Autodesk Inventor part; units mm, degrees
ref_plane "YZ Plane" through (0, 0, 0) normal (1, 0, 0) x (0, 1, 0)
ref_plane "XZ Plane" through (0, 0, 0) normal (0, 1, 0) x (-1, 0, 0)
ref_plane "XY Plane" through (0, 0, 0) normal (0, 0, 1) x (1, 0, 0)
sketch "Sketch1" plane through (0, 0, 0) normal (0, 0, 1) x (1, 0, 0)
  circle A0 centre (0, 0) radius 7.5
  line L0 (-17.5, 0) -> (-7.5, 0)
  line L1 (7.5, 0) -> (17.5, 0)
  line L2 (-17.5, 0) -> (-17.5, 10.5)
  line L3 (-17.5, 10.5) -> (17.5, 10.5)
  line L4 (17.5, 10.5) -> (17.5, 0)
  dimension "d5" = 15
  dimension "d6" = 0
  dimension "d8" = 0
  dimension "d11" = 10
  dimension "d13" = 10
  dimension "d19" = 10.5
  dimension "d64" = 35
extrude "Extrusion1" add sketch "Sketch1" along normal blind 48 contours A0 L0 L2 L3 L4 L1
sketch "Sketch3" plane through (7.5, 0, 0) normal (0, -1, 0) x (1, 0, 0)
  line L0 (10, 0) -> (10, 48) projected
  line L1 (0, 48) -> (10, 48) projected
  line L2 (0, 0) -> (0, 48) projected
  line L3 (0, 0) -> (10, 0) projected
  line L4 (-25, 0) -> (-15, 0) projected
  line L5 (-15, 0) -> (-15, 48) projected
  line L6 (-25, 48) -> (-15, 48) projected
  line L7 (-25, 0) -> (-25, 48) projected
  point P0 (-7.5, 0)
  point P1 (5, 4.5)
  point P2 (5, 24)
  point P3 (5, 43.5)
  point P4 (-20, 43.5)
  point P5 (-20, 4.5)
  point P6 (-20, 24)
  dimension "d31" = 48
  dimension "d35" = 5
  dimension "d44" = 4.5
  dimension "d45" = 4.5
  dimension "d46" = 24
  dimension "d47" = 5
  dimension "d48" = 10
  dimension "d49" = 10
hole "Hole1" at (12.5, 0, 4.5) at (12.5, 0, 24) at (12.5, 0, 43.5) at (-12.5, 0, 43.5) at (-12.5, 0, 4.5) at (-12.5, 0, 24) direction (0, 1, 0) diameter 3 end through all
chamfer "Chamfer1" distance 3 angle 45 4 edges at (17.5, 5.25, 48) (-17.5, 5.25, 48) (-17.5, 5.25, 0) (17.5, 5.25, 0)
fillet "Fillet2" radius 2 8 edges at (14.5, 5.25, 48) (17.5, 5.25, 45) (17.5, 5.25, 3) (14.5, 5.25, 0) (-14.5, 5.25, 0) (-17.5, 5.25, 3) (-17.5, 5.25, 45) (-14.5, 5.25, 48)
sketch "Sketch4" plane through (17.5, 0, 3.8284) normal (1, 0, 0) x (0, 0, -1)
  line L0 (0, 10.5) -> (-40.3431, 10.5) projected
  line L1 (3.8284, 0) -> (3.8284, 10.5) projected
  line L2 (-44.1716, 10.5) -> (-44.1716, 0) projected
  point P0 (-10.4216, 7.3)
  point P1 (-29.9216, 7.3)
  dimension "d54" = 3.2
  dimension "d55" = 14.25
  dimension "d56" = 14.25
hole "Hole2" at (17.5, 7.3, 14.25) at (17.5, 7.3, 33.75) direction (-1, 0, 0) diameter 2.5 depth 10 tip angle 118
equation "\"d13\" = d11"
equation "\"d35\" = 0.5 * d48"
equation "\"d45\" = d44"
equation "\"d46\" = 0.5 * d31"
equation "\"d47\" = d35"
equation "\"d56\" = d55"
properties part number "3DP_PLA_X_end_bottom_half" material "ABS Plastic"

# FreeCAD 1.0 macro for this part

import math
import FreeCAD as App
import Part
import Sketcher


def edges_at(feature, points):
    """Names of the edges that pass closest to the given points."""
    edges = feature.Shape.Edges
    near = lambda p: min(range(len(edges)), key=lambda i: edges[i].distToShape(Part.Vertex(*p))[0])
    return sorted({f"Edge{near(p) + 1}" for p in points})

doc = App.newDocument("Part")
body = doc.addObject("PartDesign::Body", "Body")

sketch1 = body.newObject("Sketcher::SketchObject", "Sketch")
sketch1.AttachmentSupport = (doc.getObject("XY_Plane"), [""])
sketch1.MapMode = "FlatFace"
sketch1.addGeometry(Part.ArcOfCircle(Part.Circle(App.Vector(0, 0, 0), App.Vector(0, 0, 1), 8), math.radians(0), math.radians(180)), False)
sketch1.addGeometry(Part.LineSegment(App.Vector(8, 0, 0), App.Vector(18, 0, 0)), False)
sketch1.addGeometry(Part.LineSegment(App.Vector(18, 0, 0), App.Vector(18, 10, 0)), False)
sketch1.addGeometry(Part.LineSegment(App.Vector(18, 10, 0), App.Vector(-18, 10, 0)), False)
sketch1.addGeometry(Part.LineSegment(App.Vector(-18, 10, 0), App.Vector(-18, 0, 0)), False)
sketch1.addGeometry(Part.LineSegment(App.Vector(-18, 0, 0), App.Vector(-8, 0, 0)), False)
sketch1.addConstraint(Sketcher.Constraint("Coincident", 0, 1, 1, 1))
sketch1.addConstraint(Sketcher.Constraint("Coincident", 1, 2, 2, 1))
sketch1.addConstraint(Sketcher.Constraint("Coincident", 2, 2, 3, 1))
sketch1.addConstraint(Sketcher.Constraint("Coincident", 3, 2, 4, 1))
sketch1.addConstraint(Sketcher.Constraint("Coincident", 4, 2, 5, 1))
sketch1.addConstraint(Sketcher.Constraint("Coincident", 5, 2, 0, 2))
sketch1.addConstraint(Sketcher.Constraint("Horizontal", 1))
sketch1.addConstraint(Sketcher.Constraint("Vertical", 2))
sketch1.addConstraint(Sketcher.Constraint("Horizontal", 3))
sketch1.addConstraint(Sketcher.Constraint("Vertical", 4))
sketch1.addConstraint(Sketcher.Constraint("Horizontal", 5))
sketch1.addConstraint(Sketcher.Constraint("Coincident", 0, 3, -1, 1))
sketch1.addConstraint(Sketcher.Constraint("Symmetric", 1, 2, 4, 2, -1, 1))
sketch1.addConstraint(Sketcher.Constraint("PointOnObject", 0, 1, -1))
sketch1.addConstraint(Sketcher.Constraint("Radius", 0, 7.5))
sketch1.addConstraint(Sketcher.Constraint("DistanceX", 1, 1, 1, 2, 10.0))
sketch1.addConstraint(Sketcher.Constraint("DistanceY", 2, 1, 2, 2, 10.5))
pad1 = body.newObject("PartDesign::Pad", "Pad")
pad1.Profile = sketch1
pad1.Length = 48

sketch2 = body.newObject("Sketcher::SketchObject", "Sketch001")
sketch2.AttachmentSupport = (doc.getObject("XZ_Plane"), [""])
sketch2.MapMode = "FlatFace"
sketch2.addGeometry(Part.Circle(App.Vector(12.5, 4.5, 0), App.Vector(0, 0, 1), 1.5), False)
sketch2.addGeometry(Part.Circle(App.Vector(12.5, 24, 0), App.Vector(0, 0, 1), 1.5), False)
sketch2.addGeometry(Part.Circle(App.Vector(12.5, 43.5, 0), App.Vector(0, 0, 1), 1.5), False)
sketch2.addGeometry(Part.Circle(App.Vector(-12.5, 43.5, 0), App.Vector(0, 0, 1), 1.5), False)
sketch2.addGeometry(Part.Circle(App.Vector(-12.5, 4.5, 0), App.Vector(0, 0, 1), 1.5), False)
sketch2.addGeometry(Part.Circle(App.Vector(-12.5, 24, 0), App.Vector(0, 0, 1), 1.5), False)
sketch2.addConstraint(Sketcher.Constraint("Equal", 0, 1))
sketch2.addConstraint(Sketcher.Constraint("Equal", 1, 2))
sketch2.addConstraint(Sketcher.Constraint("Equal", 2, 3))
sketch2.addConstraint(Sketcher.Constraint("Equal", 3, 4))
sketch2.addConstraint(Sketcher.Constraint("Equal", 4, 5))
sketch2.addConstraint(Sketcher.Constraint("Symmetric", 2, 3, 3, 3, -2))
sketch2.addConstraint(Sketcher.Constraint("Symmetric", 0, 3, 4, 3, -2))
sketch2.addConstraint(Sketcher.Constraint("Symmetric", 1, 3, 5, 3, -2))
sketch2.addConstraint(Sketcher.Constraint("Vertical", 0, 3, 1, 3))
sketch2.addConstraint(Sketcher.Constraint("Vertical", 1, 3, 2, 3))
sketch2.addConstraint(Sketcher.Constraint("Diameter", 0, 3.0))
sketch2.addConstraint(Sketcher.Constraint("DistanceY", -1, 1, 1, 3, 24.0))
sketch2.addConstraint(Sketcher.Constraint("DistanceY", 0, 3, 2, 3, 39.0))
sketch2.addConstraint(Sketcher.Constraint("DistanceX", 3, 3, 2, 3, 25.0))
sketch2.addConstraint(Sketcher.Constraint("DistanceY", -1, 1, 0, 3, 4.5))
doc.recompute()
hole = body.newObject("PartDesign::Hole", "Hole")
hole.Profile = sketch2
hole.ThreadType = "None"
hole.Diameter = 3
hole.DepthType = "ThroughAll"
doc.recompute()

chamfer = body.newObject("PartDesign::Chamfer", "Chamfer")
chamfer.Base = (hole, edges_at(hole, [
    (17.5, 5.25, 48),
    (-17.5, 5.25, 48),
    (-17.5, 5.25, 0),
    (17.5, 5.25, 0),
]))
chamfer.Size = 3
doc.recompute()

fillet = body.newObject("PartDesign::Fillet", "Fillet")
fillet.Base = (chamfer, edges_at(chamfer, [
    (14.5, 5.25, 48),
    (17.5, 5.25, 45),
    (17.5, 5.25, 3),
    (14.5, 5.25, 0),
    (-14.5, 5.25, 0),
    (-17.5, 5.25, 3),
    (-17.5, 5.25, 45),
    (-14.5, 5.25, 48),
]))
fillet.Radius = 2

sketch3 = body.newObject("Sketcher::SketchObject", "Sketch002")
sketch3.AttachmentSupport = (doc.getObject("YZ_Plane"), [""])
sketch3.MapMode = "FlatFace"
sketch3.AttachmentOffset = App.Placement(App.Vector(0, 0, 17.5), App.Rotation())
sketch3.addGeometry(Part.Circle(App.Vector(7.3, 14.2, 0), App.Vector(0, 0, 1), 1.2), False)
sketch3.addGeometry(Part.Circle(App.Vector(7.3, 33.8, 0), App.Vector(0, 0, 1), 1.2), False)
sketch3.addConstraint(Sketcher.Constraint("Equal", 0, 1))
sketch3.addConstraint(Sketcher.Constraint("Vertical", 0, 3, 1, 3))
sketch3.addConstraint(Sketcher.Constraint("Diameter", 0, 2.5))
sketch3.addConstraint(Sketcher.Constraint("DistanceX", -1, 1, 0, 3, 7.3))
sketch3.addConstraint(Sketcher.Constraint("DistanceY", 0, 3, 1, 3, 19.5))
sketch3.addConstraint(Sketcher.Constraint("DistanceY", -1, 1, 0, 3, 14.25))
doc.recompute()
hole2 = body.newObject("PartDesign::Hole", "Hole001")
hole2.Profile = sketch3
hole2.ThreadType = "None"
hole2.Diameter = 2.5
hole2.DepthType = "Dimension"
hole2.Depth = 10
hole2.DrillPoint = "Angled"
hole2.DrillPointAngle = 118

doc.recompute()
